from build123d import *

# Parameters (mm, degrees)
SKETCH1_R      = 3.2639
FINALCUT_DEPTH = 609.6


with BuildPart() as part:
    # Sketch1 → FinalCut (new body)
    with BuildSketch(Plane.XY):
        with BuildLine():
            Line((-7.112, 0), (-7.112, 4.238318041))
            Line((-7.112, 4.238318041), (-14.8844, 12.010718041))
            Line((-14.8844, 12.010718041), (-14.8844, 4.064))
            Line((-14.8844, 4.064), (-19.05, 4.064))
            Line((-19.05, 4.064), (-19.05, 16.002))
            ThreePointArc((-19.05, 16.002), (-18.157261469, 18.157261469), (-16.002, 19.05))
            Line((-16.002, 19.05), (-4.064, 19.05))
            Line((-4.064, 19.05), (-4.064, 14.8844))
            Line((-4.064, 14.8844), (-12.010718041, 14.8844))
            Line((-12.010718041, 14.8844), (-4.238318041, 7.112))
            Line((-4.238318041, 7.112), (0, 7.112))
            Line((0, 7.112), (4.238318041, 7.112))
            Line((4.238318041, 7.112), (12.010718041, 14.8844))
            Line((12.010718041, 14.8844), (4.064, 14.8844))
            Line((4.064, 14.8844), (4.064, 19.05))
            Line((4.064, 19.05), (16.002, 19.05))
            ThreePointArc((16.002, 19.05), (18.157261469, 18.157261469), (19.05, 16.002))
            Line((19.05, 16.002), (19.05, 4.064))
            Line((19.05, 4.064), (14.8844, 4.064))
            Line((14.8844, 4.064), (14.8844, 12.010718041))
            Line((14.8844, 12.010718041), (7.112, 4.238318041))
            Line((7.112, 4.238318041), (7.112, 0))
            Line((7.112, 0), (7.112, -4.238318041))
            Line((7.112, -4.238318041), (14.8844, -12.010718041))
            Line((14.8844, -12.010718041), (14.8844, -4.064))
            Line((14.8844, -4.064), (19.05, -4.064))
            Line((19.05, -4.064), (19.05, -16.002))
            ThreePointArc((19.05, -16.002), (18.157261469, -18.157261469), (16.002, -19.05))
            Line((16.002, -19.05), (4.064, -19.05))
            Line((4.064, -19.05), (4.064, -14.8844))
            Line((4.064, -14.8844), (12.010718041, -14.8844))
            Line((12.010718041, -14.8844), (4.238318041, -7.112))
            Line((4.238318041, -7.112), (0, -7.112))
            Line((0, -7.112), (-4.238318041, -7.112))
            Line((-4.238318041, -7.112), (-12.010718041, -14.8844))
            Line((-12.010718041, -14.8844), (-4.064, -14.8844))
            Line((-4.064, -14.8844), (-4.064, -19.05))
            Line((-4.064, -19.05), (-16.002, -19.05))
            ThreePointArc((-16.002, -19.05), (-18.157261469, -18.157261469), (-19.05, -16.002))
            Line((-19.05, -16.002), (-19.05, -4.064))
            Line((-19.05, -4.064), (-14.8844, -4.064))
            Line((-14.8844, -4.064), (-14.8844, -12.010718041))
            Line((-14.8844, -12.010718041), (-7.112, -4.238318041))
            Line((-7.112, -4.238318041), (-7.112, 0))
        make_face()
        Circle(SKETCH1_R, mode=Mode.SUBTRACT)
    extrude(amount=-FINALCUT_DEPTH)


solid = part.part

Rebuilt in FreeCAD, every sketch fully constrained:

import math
import FreeCAD as App
import Part
import Sketcher
from FreeCAD import Vector
Q = App.Units.Quantity

doc = App.newDocument("Part")
body = doc.addObject("PartDesign::Body", "Body")

# Sketch on XY plane
sketch1 = body.newObject("Sketcher::SketchObject", "Sketch")
sketch1.AttachmentSupport = (doc.getObject("XY_Plane"), [""])
sketch1.MapMode = "FlatFace"
sketch1.addGeometry([
    Part.LineSegment(Vector(-14.9, 12, 0), Vector(-7.1, 4.2, 0)),  # 0
    Part.LineSegment(Vector(-7.1, 4.2, 0), Vector(-7.1, -4.2, 0)),  # 1
    Part.LineSegment(Vector(-7.1, -4.2, 0), Vector(-14.9, -12, 0)),  # 2
    Part.LineSegment(Vector(-14.9, -12, 0), Vector(-14.9, -4.1, 0)),  # 3
    Part.LineSegment(Vector(-14.9, -4.1, 0), Vector(-19.1, -4.1, 0)),  # 4
    Part.LineSegment(Vector(-19.1, -4.1, 0), Vector(-19.1, -16, 0)),  # 5
    Part.ArcOfCircle(Part.Circle(Vector(-16, -16, 0), Vector(0, 0, 1), 3), math.radians(180), math.radians(270)),  # 6
    Part.LineSegment(Vector(-16, -19.1, 0), Vector(-4.1, -19.1, 0)),  # 7
    Part.LineSegment(Vector(-4.1, -19.1, 0), Vector(-4.1, -14.9, 0)),  # 8
    Part.LineSegment(Vector(-4.1, -14.9, 0), Vector(-12, -14.9, 0)),  # 9
    Part.LineSegment(Vector(-12, -14.9, 0), Vector(-4.2, -7.1, 0)),  # 10
    Part.LineSegment(Vector(-4.2, -7.1, 0), Vector(4.2, -7.1, 0)),  # 11
    Part.LineSegment(Vector(4.2, -7.1, 0), Vector(12, -14.9, 0)),  # 12
    Part.LineSegment(Vector(12, -14.9, 0), Vector(4.1, -14.9, 0)),  # 13
    Part.LineSegment(Vector(4.1, -14.9, 0), Vector(4.1, -19.1, 0)),  # 14
    Part.LineSegment(Vector(4.1, -19.1, 0), Vector(16, -19.1, 0)),  # 15
    Part.ArcOfCircle(Part.Circle(Vector(16, -16, 0), Vector(0, 0, 1), 3), math.radians(-90), math.radians(0)),  # 16
    Part.LineSegment(Vector(19.1, -16, 0), Vector(19.1, -4.1, 0)),  # 17
    Part.LineSegment(Vector(19.1, -4.1, 0), Vector(14.9, -4.1, 0)),  # 18
    Part.LineSegment(Vector(14.9, -4.1, 0), Vector(14.9, -12, 0)),  # 19
    Part.LineSegment(Vector(14.9, -12, 0), Vector(7.1, -4.2, 0)),  # 20
    Part.LineSegment(Vector(7.1, -4.2, 0), Vector(7.1, 4.2, 0)),  # 21
    Part.LineSegment(Vector(7.1, 4.2, 0), Vector(14.9, 12, 0)),  # 22
    Part.LineSegment(Vector(14.9, 12, 0), Vector(14.9, 4.1, 0)),  # 23
    Part.LineSegment(Vector(14.9, 4.1, 0), Vector(19.1, 4.1, 0)),  # 24
    Part.LineSegment(Vector(19.1, 4.1, 0), Vector(19.1, 16, 0)),  # 25
    Part.ArcOfCircle(Part.Circle(Vector(16, 16, 0), Vector(0, 0, 1), 3), math.radians(0), math.radians(90)),  # 26
    Part.LineSegment(Vector(16, 19.1, 0), Vector(4.1, 19.1, 0)),  # 27
    Part.LineSegment(Vector(4.1, 19.1, 0), Vector(4.1, 14.9, 0)),  # 28
    Part.LineSegment(Vector(4.1, 14.9, 0), Vector(12, 14.9, 0)),  # 29
    Part.LineSegment(Vector(12, 14.9, 0), Vector(4.2, 7.1, 0)),  # 30
    Part.LineSegment(Vector(4.2, 7.1, 0), Vector(-4.2, 7.1, 0)),  # 31
    Part.LineSegment(Vector(-4.2, 7.1, 0), Vector(-12, 14.9, 0)),  # 32
    Part.LineSegment(Vector(-12, 14.9, 0), Vector(-4.1, 14.9, 0)),  # 33
    Part.LineSegment(Vector(-4.1, 14.9, 0), Vector(-4.1, 19.1, 0)),  # 34
    Part.LineSegment(Vector(-4.1, 19.1, 0), Vector(-16, 19.1, 0)),  # 35
    Part.ArcOfCircle(Part.Circle(Vector(-16, 16, 0), Vector(0, 0, 1), 3), math.radians(90), math.radians(180)),  # 36
    Part.LineSegment(Vector(-19.1, 16, 0), Vector(-19.1, 4.1, 0)),  # 37
    Part.LineSegment(Vector(-19.1, 4.1, 0), Vector(-14.9, 4.1, 0)),  # 38
    Part.LineSegment(Vector(-14.9, 4.1, 0), Vector(-14.9, 12, 0)),  # 39
    Part.Circle(Vector(0, 0, 0), Vector(0, 0, 1), 3.3),  # 40
], False)
sketch1.addConstraint([
    Sketcher.Constraint("Coincident", 0, 2, 1, 1),
    Sketcher.Constraint("Coincident", 1, 2, 2, 1),
    Sketcher.Constraint("Coincident", 2, 2, 3, 1),
    Sketcher.Constraint("Coincident", 3, 2, 4, 1),
    Sketcher.Constraint("Coincident", 4, 2, 5, 1),
    Sketcher.Constraint("Tangent", 5, 2, 6, 1),
    Sketcher.Constraint("Tangent", 6, 2, 7, 1),
    Sketcher.Constraint("Coincident", 7, 2, 8, 1),
    Sketcher.Constraint("Coincident", 8, 2, 9, 1),
    Sketcher.Constraint("Coincident", 9, 2, 10, 1),
    Sketcher.Constraint("Coincident", 10, 2, 11, 1),
    Sketcher.Constraint("Coincident", 11, 2, 12, 1),
    Sketcher.Constraint("Coincident", 12, 2, 13, 1),
    Sketcher.Constraint("Coincident", 13, 2, 14, 1),
    Sketcher.Constraint("Coincident", 14, 2, 15, 1),
    Sketcher.Constraint("Tangent", 15, 2, 16, 1),
    Sketcher.Constraint("Tangent", 16, 2, 17, 1),
    Sketcher.Constraint("Coincident", 17, 2, 18, 1),
    Sketcher.Constraint("Coincident", 18, 2, 19, 1),
    Sketcher.Constraint("Coincident", 19, 2, 20, 1),
    Sketcher.Constraint("Coincident", 20, 2, 21, 1),
    Sketcher.Constraint("Coincident", 21, 2, 22, 1),
    Sketcher.Constraint("Coincident", 22, 2, 23, 1),
    Sketcher.Constraint("Coincident", 23, 2, 24, 1),
    Sketcher.Constraint("Coincident", 24, 2, 25, 1),
    Sketcher.Constraint("Tangent", 25, 2, 26, 1),
    Sketcher.Constraint("Tangent", 26, 2, 27, 1),
    Sketcher.Constraint("Coincident", 27, 2, 28, 1),
    Sketcher.Constraint("Coincident", 28, 2, 29, 1),
    Sketcher.Constraint("Coincident", 29, 2, 30, 1),
    Sketcher.Constraint("Coincident", 30, 2, 31, 1),
    Sketcher.Constraint("Coincident", 31, 2, 32, 1),
    Sketcher.Constraint("Coincident", 32, 2, 33, 1),
    Sketcher.Constraint("Coincident", 33, 2, 34, 1),
    Sketcher.Constraint("Coincident", 34, 2, 35, 1),
    Sketcher.Constraint("Tangent", 35, 2, 36, 1),
    Sketcher.Constraint("Tangent", 36, 2, 37, 1),
    Sketcher.Constraint("Coincident", 37, 2, 38, 1),
    Sketcher.Constraint("Coincident", 38, 2, 39, 1),
    Sketcher.Constraint("Coincident", 39, 2, 0, 1),
    Sketcher.Constraint("Vertical", 1),
    Sketcher.Constraint("Vertical", 3),
    Sketcher.Constraint("Horizontal", 4),
    Sketcher.Constraint("Vertical", 5),
    Sketcher.Constraint("Horizontal", 7),
    Sketcher.Constraint("Vertical", 8),
    Sketcher.Constraint("Horizontal", 9),
    Sketcher.Constraint("Horizontal", 11),
    Sketcher.Constraint("Horizontal", 13),
    Sketcher.Constraint("Vertical", 14),
    Sketcher.Constraint("Horizontal", 15),
    Sketcher.Constraint("Vertical", 17),
    Sketcher.Constraint("Horizontal", 18),
    Sketcher.Constraint("Vertical", 19),
    Sketcher.Constraint("Vertical", 21),
    Sketcher.Constraint("Vertical", 23),
    Sketcher.Constraint("Horizontal", 24),
    Sketcher.Constraint("Vertical", 25),
    Sketcher.Constraint("Horizontal", 27),
    Sketcher.Constraint("Vertical", 28),
    Sketcher.Constraint("Horizontal", 29),
    Sketcher.Constraint("Horizontal", 31),
    Sketcher.Constraint("Horizontal", 33),
    Sketcher.Constraint("Vertical", 34),
    Sketcher.Constraint("Horizontal", 35),
    Sketcher.Constraint("Vertical", 37),
    Sketcher.Constraint("Horizontal", 38),
    Sketcher.Constraint("Vertical", 39),
    Sketcher.Constraint("Coincident", 40, 3, -1, 1),
    Sketcher.Constraint("Equal", 6, 16),
    Sketcher.Constraint("Equal", 16, 26),
    Sketcher.Constraint("Equal", 26, 36),
    Sketcher.Constraint("Symmetric", 6, 3, 26, 3, -1, 1),
    Sketcher.Constraint("Symmetric", 16, 3, 36, 3, -1, 1),
    Sketcher.Constraint("Symmetric", 0, 2, 20, 2, -1, 1),
    Sketcher.Constraint("Symmetric", 2, 2, 22, 2, -1, 1),
    Sketcher.Constraint("Symmetric", 8, 2, 28, 2, -1, 1),
    Sketcher.Constraint("Symmetric", 10, 2, 30, 2, -1, 1),
    Sketcher.Constraint("Symmetric", 12, 2, 32, 2, -1, 1),
    Sketcher.Constraint("Symmetric", 18, 2, 38, 2, -1, 1),
    Sketcher.Constraint("Symmetric", 6, 3, 16, 3, -2),
    Sketcher.Constraint("Symmetric", 9, 2, 12, 2, -2),
    Sketcher.Constraint("Symmetric", 3, 2, 18, 2, -2),
    Sketcher.Constraint("Perpendicular", 0, 2),
    Sketcher.Constraint("Parallel", 2, 10),
    Sketcher.Constraint("Perpendicular", 10, 12),
    Sketcher.Constraint("Parallel", 12, 20),
    Sketcher.Constraint("Perpendicular", 20, 22),
    Sketcher.Constraint("Parallel", 22, 30),
    Sketcher.Constraint("Perpendicular", 30, 32),
    Sketcher.Constraint("Horizontal", 2, 2, 19, 2),
    Sketcher.Constraint("Horizontal", 1, 2, 20, 2),
    Sketcher.Constraint("Horizontal", 24, 2, 37, 2),
    Sketcher.Constraint("Vertical", 14, 2, 27, 2),
    Sketcher.Constraint("Vertical", 8, 2, 33, 2),
    Sketcher.Constraint("Equal", 31, 1),
    Sketcher.Constraint("Equal", 33, 3),
    Sketcher.Constraint("Equal", 35, 5),
    Sketcher.Constraint("Equal", 38, 8),
    Sketcher.Constraint("Equal", 2, 10),
    Sketcher.Constraint("Radius", 6, Q("0.12 in")),
    Sketcher.Constraint("Diameter", 40, Q("0.257 in")),
    Sketcher.Constraint("DistanceX", 7, 1, 7, 2, Q("0.47 in")),
    Sketcher.Constraint("DistanceX", 4, 2, 4, 1, Q("0.164 in")),
    Sketcher.Constraint("DistanceX", 6, 3, -1, 1, Q("0.63 in")),
    Sketcher.Constraint("DistanceX", 0, 2, -1, 1, Q("0.28 in")),
    Sketcher.Constraint("DistanceX", 9, 2, 9, 1, Q("7.946718 mm")),
])
pad1 = body.newObject("PartDesign::Pad", "Pad")
pad1.Profile = sketch1
pad1.Length = Q("24 in")
pad1.Reversed = True

doc.recompute()
